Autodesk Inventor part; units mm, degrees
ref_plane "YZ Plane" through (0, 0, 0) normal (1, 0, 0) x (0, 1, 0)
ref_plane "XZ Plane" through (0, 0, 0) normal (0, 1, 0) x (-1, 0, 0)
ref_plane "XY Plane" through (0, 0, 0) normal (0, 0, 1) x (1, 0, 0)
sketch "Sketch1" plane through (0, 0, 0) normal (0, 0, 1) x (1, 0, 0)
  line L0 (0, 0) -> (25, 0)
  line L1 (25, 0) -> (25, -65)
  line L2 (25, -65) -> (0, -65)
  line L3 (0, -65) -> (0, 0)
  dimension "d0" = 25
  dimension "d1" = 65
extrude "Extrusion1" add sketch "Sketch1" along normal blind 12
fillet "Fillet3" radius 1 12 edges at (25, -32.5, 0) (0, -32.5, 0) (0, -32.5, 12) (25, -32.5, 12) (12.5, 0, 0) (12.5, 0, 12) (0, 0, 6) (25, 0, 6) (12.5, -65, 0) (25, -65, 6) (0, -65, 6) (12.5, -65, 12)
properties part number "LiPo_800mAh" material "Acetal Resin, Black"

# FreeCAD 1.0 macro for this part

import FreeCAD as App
import Part
import Sketcher
Q = App.Units.Quantity


def add_polygon(sketch, points):
    """Adds a closed chain of lines whose ends are joined by coincident constraints."""
    first, n = sketch.GeometryCount, len(points)
    for a, b in zip(points, points[1:] + points[:1]):
        sketch.addGeometry(Part.LineSegment(App.Vector(*a, 0), App.Vector(*b, 0)), False)
    for i in range(n):
        sketch.addConstraint(Sketcher.Constraint("Coincident", first + i, 2, first + (i + 1) % n, 1))

doc = App.newDocument("Part")
body = doc.addObject("PartDesign::Body", "Body")

# Sketch on XY plane
sketch1 = body.newObject("Sketcher::SketchObject", "Sketch")
sketch1.AttachmentSupport = (doc.getObject("XY_Plane"), [""])
sketch1.MapMode = "FlatFace"
add_polygon(sketch1, [(25, 0), (0, 0), (0, -65), (25, -65)])  # lines 0-3
sketch1.addConstraint([
    Sketcher.Constraint("Horizontal", 0),
    Sketcher.Constraint("Vertical", 1),
    Sketcher.Constraint("Horizontal", 2),
    Sketcher.Constraint("Vertical", 3),
    Sketcher.Constraint("Coincident", 0, 2, -1, 1),
    Sketcher.Constraint("DistanceX", 0, 2, 0, 1, Q("25 mm")),
    Sketcher.Constraint("DistanceY", 1, 2, 1, 1, Q("65 mm")),
])
pad1 = body.newObject("PartDesign::Pad", "Pad")
pad1.Profile = sketch1
pad1.Length = 12
doc.recompute()

fillet = body.newObject("PartDesign::Fillet", "Fillet")
fillet.Base = (pad1, ["Edge1"])
fillet.UseAllEdges = True
fillet.Radius = 1

doc.recompute()
